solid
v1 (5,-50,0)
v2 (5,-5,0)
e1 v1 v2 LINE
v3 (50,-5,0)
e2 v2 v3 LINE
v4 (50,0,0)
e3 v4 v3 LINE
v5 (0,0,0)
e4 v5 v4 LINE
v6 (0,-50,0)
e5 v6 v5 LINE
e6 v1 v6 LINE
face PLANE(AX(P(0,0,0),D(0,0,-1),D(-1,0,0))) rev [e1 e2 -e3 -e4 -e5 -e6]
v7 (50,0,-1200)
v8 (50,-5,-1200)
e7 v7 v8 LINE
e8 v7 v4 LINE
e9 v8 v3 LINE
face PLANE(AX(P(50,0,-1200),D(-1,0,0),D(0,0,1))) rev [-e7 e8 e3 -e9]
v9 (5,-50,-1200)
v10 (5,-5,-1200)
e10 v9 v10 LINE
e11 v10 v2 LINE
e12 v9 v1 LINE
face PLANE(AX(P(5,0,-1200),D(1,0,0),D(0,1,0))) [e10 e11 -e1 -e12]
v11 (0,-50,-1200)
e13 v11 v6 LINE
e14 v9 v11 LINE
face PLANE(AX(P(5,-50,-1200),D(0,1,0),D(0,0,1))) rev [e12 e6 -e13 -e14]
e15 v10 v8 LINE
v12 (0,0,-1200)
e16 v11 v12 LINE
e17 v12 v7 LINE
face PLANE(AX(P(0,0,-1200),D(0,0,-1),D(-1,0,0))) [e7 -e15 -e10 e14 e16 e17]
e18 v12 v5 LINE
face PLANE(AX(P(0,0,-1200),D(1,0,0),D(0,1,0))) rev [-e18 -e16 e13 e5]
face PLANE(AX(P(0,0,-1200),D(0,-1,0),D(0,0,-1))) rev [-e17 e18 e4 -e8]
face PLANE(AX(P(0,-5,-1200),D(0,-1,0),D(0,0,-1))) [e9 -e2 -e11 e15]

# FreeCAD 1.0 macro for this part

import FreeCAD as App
import Part
import Sketcher

doc = App.newDocument("Part")
params = doc.addObject("Spreadsheet::Sheet", "Params")
for row, (alias, value) in enumerate([
    ("sketch1_width", "50 mm"),
    ("sketch1_width2", "5 mm"),
    ("pad1_length", "1200 mm"),
], start=1):
    params.set(f"A{row}", alias)
    params.set(f"B{row}", "=" + value)
    params.setAlias(f"B{row}", alias)

body = doc.addObject("PartDesign::Body", "Body")

# Sketch on XY plane
sketch1 = body.newObject("Sketcher::SketchObject", "Sketch")
sketch1.AttachmentSupport = (doc.getObject("XY_Plane"), [""])
sketch1.MapMode = "FlatFace"
sketch1.addGeometry([
    Part.LineSegment(App.Vector(50, 0, 0), App.Vector(0, 0, 0)),  # 0
    Part.LineSegment(App.Vector(0, 0, 0), App.Vector(0, -50, 0)),  # 1
    Part.LineSegment(App.Vector(0, -50, 0), App.Vector(5, -50, 0)),  # 2
    Part.LineSegment(App.Vector(5, -50, 0), App.Vector(5, -5, 0)),  # 3
    Part.LineSegment(App.Vector(5, -5, 0), App.Vector(50, -5, 0)),  # 4
    Part.LineSegment(App.Vector(50, -5, 0), App.Vector(50, 0, 0)),  # 5
], False)
sketch1.addConstraint([
    Sketcher.Constraint("Coincident", 0, 2, 1, 1),
    Sketcher.Constraint("Coincident", 1, 2, 2, 1),
    Sketcher.Constraint("Coincident", 2, 2, 3, 1),
    Sketcher.Constraint("Coincident", 3, 2, 4, 1),
    Sketcher.Constraint("Coincident", 4, 2, 5, 1),
    Sketcher.Constraint("Coincident", 5, 2, 0, 1),
    Sketcher.Constraint("Horizontal", 0),
    Sketcher.Constraint("Vertical", 1),
    Sketcher.Constraint("Horizontal", 2),
    Sketcher.Constraint("Vertical", 3),
    Sketcher.Constraint("Horizontal", 4),
    Sketcher.Constraint("Vertical", 5),
    Sketcher.Constraint("Coincident", 0, 2, -1, 1),
    Sketcher.Constraint("Equal", 0, 1),
    Sketcher.Constraint("Equal", 4, 3),
    Sketcher.Constraint("DistanceX", 0, 2, 0, 1, 50.0),
    Sketcher.Constraint("DistanceX", 2, 1, 2, 2, 5.0),
])
sketch1.setExpression("Constraints[15]", "Params.sketch1_width")
sketch1.setExpression("Constraints[16]", "Params.sketch1_width2")
pad1 = body.newObject("PartDesign::Pad", "Pad")
pad1.Profile = sketch1
pad1.setExpression("Length", "Params.pad1_length")
pad1.Reversed = True

doc.recompute()
